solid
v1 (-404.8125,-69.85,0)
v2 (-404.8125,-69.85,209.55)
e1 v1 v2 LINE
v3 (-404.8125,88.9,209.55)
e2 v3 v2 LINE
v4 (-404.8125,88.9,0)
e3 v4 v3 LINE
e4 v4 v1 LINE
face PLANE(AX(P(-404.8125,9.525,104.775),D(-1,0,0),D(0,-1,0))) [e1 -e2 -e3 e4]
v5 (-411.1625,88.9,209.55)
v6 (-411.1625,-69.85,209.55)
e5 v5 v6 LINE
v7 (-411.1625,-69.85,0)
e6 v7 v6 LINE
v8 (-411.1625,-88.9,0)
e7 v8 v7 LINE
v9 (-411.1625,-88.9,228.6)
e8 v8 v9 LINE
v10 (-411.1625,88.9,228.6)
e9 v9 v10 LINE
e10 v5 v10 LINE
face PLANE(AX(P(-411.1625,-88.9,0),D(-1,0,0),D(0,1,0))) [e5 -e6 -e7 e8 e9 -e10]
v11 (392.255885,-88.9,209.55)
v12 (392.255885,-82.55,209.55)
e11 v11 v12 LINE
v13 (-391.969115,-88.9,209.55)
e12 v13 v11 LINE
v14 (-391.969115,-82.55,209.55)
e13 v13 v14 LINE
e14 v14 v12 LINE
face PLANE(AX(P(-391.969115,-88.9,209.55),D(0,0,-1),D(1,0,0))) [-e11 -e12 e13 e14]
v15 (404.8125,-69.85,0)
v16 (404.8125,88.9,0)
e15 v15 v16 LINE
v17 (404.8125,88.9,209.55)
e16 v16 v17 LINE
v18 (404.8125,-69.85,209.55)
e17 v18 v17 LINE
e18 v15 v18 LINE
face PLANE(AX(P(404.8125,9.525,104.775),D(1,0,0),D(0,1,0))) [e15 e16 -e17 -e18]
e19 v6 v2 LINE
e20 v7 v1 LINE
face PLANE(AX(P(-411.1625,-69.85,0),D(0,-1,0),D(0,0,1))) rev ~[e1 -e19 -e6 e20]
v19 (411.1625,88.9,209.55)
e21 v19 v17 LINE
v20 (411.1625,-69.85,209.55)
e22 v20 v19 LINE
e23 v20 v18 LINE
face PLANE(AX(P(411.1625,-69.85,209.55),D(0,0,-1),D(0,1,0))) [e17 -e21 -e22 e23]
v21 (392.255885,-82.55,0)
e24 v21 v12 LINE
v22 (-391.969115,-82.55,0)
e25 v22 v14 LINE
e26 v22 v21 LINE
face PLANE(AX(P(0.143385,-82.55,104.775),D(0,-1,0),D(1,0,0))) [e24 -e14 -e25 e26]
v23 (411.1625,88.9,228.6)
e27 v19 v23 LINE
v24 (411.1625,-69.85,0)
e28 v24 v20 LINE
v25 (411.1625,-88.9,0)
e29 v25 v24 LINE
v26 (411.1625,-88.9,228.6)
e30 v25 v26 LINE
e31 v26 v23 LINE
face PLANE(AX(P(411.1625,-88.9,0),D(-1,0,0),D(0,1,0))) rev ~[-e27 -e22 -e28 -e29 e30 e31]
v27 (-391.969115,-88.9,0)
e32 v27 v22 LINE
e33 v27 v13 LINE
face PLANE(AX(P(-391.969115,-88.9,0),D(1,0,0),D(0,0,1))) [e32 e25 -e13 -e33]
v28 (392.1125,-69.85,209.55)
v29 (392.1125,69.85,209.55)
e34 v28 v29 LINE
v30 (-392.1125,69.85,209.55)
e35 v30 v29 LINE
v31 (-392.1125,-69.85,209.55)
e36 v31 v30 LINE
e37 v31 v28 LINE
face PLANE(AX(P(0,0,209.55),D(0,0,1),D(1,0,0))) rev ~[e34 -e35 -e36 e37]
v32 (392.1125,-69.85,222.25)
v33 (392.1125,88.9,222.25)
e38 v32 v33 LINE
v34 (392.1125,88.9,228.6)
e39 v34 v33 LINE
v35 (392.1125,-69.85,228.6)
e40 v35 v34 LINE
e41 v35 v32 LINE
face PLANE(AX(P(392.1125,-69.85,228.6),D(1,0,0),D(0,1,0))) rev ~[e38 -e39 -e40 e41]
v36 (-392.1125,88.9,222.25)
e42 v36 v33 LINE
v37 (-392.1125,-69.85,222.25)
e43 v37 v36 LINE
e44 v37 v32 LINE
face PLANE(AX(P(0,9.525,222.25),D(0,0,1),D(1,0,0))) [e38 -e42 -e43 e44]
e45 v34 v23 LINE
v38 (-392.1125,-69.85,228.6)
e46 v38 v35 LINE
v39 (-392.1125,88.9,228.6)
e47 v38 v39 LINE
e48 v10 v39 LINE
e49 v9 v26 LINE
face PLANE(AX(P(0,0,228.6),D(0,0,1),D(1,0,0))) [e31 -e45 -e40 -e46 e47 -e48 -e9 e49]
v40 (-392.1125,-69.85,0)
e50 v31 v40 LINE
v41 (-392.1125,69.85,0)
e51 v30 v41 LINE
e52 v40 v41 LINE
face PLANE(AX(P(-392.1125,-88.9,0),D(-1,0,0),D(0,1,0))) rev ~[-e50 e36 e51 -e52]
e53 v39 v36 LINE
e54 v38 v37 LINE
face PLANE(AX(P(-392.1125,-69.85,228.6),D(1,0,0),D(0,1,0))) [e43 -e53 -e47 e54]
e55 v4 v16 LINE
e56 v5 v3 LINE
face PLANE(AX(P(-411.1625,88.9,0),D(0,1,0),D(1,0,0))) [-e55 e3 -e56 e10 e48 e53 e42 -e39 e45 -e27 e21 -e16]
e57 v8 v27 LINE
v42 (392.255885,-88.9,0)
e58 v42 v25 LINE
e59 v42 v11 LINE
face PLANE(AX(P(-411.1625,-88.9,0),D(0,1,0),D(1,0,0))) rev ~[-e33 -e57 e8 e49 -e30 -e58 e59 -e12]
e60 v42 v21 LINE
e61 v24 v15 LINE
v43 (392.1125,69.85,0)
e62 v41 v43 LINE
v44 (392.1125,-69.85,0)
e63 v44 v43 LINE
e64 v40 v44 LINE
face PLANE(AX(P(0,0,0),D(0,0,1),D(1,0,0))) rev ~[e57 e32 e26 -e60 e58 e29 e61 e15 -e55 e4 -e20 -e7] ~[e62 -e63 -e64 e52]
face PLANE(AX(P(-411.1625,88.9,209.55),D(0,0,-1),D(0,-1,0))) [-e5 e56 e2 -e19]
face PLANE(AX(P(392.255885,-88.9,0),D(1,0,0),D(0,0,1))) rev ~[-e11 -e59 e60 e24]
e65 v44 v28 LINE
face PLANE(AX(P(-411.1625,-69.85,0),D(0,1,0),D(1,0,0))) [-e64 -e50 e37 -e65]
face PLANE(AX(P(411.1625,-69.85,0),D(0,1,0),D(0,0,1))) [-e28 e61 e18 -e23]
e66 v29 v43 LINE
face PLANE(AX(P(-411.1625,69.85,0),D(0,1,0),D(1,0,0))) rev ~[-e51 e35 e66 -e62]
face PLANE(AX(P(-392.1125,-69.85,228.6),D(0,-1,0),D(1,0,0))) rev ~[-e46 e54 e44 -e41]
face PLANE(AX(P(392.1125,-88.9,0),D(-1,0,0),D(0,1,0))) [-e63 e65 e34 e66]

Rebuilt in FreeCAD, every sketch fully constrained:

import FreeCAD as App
import Part
import Sketcher

V = App.Vector
Q = App.Units.Quantity


def faces_at(feature, points):
    """Names of the faces that lie closest to the given points."""
    faces = feature.Shape.Faces
    near = lambda p: min(range(len(faces)), key=lambda i: faces[i].distToShape(Part.Vertex(*p))[0])
    return sorted({f"Face{near(p) + 1}" for p in points})


def add_polygon(sketch, points):
    """Adds a closed chain of lines whose ends are joined by coincident constraints."""
    first, n = sketch.GeometryCount, len(points)
    for a, b in zip(points, points[1:] + points[:1]):
        sketch.addGeometry(Part.LineSegment(App.Vector(*a, 0), App.Vector(*b, 0)), False)
    for i in range(n):
        sketch.addConstraint(Sketcher.Constraint("Coincident", first + i, 2, first + (i + 1) % n, 1))

doc = App.newDocument("Part")
body = doc.addObject("PartDesign::Body", "Body")

sketch1 = doc.addObject("Sketcher::SketchObject", "Sketch")
body.addObject(sketch1)
sketch1.AttachmentSupport = (doc.XY_Plane, [""])
sketch1.MapMode = "FlatFace"
add_polygon(sketch1, [(-411.1625, 88.9), (-411.1625, -88.9), (411.1625, -88.9), (411.1625, 88.9)])
sketch1.addConstraint([
    Sketcher.Constraint("Vertical", 0),
    Sketcher.Constraint("Horizontal", 1),
    Sketcher.Constraint("Vertical", 2),
    Sketcher.Constraint("Horizontal", 3),
    Sketcher.Constraint("Symmetric", 0, 2, 2, 2, -1, 1),
    Sketcher.Constraint("DistanceY", 0, 2, 0, 1, Q("7 in")),
    Sketcher.Constraint("DistanceX", 1, 1, 1, 2, Q("32.375 in")),
])
pad1 = doc.addObject("PartDesign::Pad", "Pad")
body.addObject(pad1)
pad1.Profile = sketch1
pad1.Length = Q("9 in")
doc.recompute()

thickness = doc.addObject("PartDesign::Thickness", "Thickness")
body.addObject(thickness)
thickness.Base = (pad1, faces_at(pad1, [(0, 0, 0)]))
thickness.Value = Q("0.75 in")
thickness.Reversed = True
thickness.Join = "Arc"

sketch2 = doc.addObject("Sketcher::SketchObject", "Sketch001")
body.addObject(sketch2)
sketch2.AttachmentSupport = (doc.XZ_Plane, [""])
sketch2.MapMode = "FlatFace"
sketch2.AttachmentOffset = App.Placement(V(0, 0, 3.5 * 25.4), App.Rotation())
add_polygon(sketch2, [(-391.969115, 209.55), (-391.969115, 0), (392.255885, 0), (392.255885, 209.55)])
sketch2.addConstraint([
    Sketcher.Constraint("Vertical", 0),
    Sketcher.Constraint("Horizontal", 1),
    Sketcher.Constraint("Vertical", 2),
    Sketcher.Constraint("Horizontal", 3),
    Sketcher.Constraint("PointOnObject", 0, 2, -1),
    Sketcher.Constraint("DistanceY", 0, 2, 0, 1, Q("8.25 in")),
    Sketcher.Constraint("DistanceX", 1, 1, 1, 2, Q("30.875 in")),
    Sketcher.Constraint("DistanceX", 0, 2, -1, 1, 391.969115),
])
pocket1 = doc.addObject("PartDesign::Pocket", "Pocket")
body.addObject(pocket1)
pocket1.Profile = sketch2
pocket1.Length = Q("0.25 in")

sketch3 = doc.addObject("Sketcher::SketchObject", "Sketch002")
body.addObject(sketch3)
sketch3.AttachmentSupport = (doc.YZ_Plane, [""])
sketch3.MapMode = "FlatFace"
sketch3.AttachmentOffset = App.Placement(V(0, 0, -16.1875 * 25.4), App.Rotation())
add_polygon(sketch3, [(88.9, 209.55), (88.9, 0), (-69.85, 0), (-69.85, 209.55)])
sketch3.addConstraint([
    Sketcher.Constraint("Vertical", 0),
    Sketcher.Constraint("Horizontal", 1),
    Sketcher.Constraint("Vertical", 2),
    Sketcher.Constraint("Horizontal", 3),
    Sketcher.Constraint("PointOnObject", 0, 2, -1),
    Sketcher.Constraint("DistanceX", 1, 2, 1, 1, Q("6.25 in")),
    Sketcher.Constraint("DistanceY", 0, 2, 0, 1, Q("8.25 in")),
    Sketcher.Constraint("DistanceX", -1, 1, 0, 2, Q("3.5 in")),
])
pocket2 = doc.addObject("PartDesign::Pocket", "Pocket001")
body.addObject(pocket2)
pocket2.Profile = sketch3
pocket2.Length = Q("0.25 in")
pocket2.Reversed = True

sketch4 = doc.addObject("Sketcher::SketchObject", "Sketch003")
body.addObject(sketch4)
sketch4.AttachmentSupport = (doc.YZ_Plane, [""])
sketch4.MapMode = "FlatFace"
sketch4.AttachmentOffset = App.Placement(V(0, 0, 16.1875 * 25.4), App.Rotation())
add_polygon(sketch4, [(-69.85, 209.55), (-69.85, 0), (88.9, 0), (88.9, 209.55)])
sketch4.addConstraint([
    Sketcher.Constraint("Vertical", 0),
    Sketcher.Constraint("Horizontal", 1),
    Sketcher.Constraint("Vertical", 2),
    Sketcher.Constraint("Horizontal", 3),
    Sketcher.Constraint("PointOnObject", 0, 2, -1),
    Sketcher.Constraint("DistanceX", 1, 1, 1, 2, Q("6.25 in")),
    Sketcher.Constraint("DistanceY", 0, 2, 0, 1, Q("8.25 in")),
    Sketcher.Constraint("DistanceX", -1, 1, 1, 2, Q("3.5 in")),
])
pocket3 = doc.addObject("PartDesign::Pocket", "Pocket002")
body.addObject(pocket3)
pocket3.Profile = sketch4
pocket3.Length = Q("0.25 in")

sketch5 = doc.addObject("Sketcher::SketchObject", "Sketch004")
body.addObject(sketch5)
sketch5.AttachmentSupport = (doc.XY_Plane, [""])
sketch5.MapMode = "FlatFace"
sketch5.AttachmentOffset = App.Placement(V(0, 0, 9 * 25.4), App.Rotation())
add_polygon(sketch5, [(-392.1125, 88.9), (-392.1125, -69.85), (392.1125, -69.85), (392.1125, 88.9)])
sketch5.addConstraint([
    Sketcher.Constraint("Vertical", 0),
    Sketcher.Constraint("Horizontal", 1),
    Sketcher.Constraint("Vertical", 2),
    Sketcher.Constraint("Horizontal", 3),
    Sketcher.Constraint("DistanceY", 0, 2, 0, 1, Q("6.25 in")),
    Sketcher.Constraint("DistanceY", -1, 1, 2, 2, Q("3.5 in")),
    Sketcher.Constraint("DistanceX", 1, 1, 1, 2, Q("30.875 in")),
    Sketcher.Constraint("DistanceX", 0, 2, -1, 1, Q("15.4375 in")),
])
pocket4 = doc.addObject("PartDesign::Pocket", "Pocket003")
body.addObject(pocket4)
pocket4.Profile = sketch5
pocket4.Length = Q("0.25 in")

doc.recompute()
